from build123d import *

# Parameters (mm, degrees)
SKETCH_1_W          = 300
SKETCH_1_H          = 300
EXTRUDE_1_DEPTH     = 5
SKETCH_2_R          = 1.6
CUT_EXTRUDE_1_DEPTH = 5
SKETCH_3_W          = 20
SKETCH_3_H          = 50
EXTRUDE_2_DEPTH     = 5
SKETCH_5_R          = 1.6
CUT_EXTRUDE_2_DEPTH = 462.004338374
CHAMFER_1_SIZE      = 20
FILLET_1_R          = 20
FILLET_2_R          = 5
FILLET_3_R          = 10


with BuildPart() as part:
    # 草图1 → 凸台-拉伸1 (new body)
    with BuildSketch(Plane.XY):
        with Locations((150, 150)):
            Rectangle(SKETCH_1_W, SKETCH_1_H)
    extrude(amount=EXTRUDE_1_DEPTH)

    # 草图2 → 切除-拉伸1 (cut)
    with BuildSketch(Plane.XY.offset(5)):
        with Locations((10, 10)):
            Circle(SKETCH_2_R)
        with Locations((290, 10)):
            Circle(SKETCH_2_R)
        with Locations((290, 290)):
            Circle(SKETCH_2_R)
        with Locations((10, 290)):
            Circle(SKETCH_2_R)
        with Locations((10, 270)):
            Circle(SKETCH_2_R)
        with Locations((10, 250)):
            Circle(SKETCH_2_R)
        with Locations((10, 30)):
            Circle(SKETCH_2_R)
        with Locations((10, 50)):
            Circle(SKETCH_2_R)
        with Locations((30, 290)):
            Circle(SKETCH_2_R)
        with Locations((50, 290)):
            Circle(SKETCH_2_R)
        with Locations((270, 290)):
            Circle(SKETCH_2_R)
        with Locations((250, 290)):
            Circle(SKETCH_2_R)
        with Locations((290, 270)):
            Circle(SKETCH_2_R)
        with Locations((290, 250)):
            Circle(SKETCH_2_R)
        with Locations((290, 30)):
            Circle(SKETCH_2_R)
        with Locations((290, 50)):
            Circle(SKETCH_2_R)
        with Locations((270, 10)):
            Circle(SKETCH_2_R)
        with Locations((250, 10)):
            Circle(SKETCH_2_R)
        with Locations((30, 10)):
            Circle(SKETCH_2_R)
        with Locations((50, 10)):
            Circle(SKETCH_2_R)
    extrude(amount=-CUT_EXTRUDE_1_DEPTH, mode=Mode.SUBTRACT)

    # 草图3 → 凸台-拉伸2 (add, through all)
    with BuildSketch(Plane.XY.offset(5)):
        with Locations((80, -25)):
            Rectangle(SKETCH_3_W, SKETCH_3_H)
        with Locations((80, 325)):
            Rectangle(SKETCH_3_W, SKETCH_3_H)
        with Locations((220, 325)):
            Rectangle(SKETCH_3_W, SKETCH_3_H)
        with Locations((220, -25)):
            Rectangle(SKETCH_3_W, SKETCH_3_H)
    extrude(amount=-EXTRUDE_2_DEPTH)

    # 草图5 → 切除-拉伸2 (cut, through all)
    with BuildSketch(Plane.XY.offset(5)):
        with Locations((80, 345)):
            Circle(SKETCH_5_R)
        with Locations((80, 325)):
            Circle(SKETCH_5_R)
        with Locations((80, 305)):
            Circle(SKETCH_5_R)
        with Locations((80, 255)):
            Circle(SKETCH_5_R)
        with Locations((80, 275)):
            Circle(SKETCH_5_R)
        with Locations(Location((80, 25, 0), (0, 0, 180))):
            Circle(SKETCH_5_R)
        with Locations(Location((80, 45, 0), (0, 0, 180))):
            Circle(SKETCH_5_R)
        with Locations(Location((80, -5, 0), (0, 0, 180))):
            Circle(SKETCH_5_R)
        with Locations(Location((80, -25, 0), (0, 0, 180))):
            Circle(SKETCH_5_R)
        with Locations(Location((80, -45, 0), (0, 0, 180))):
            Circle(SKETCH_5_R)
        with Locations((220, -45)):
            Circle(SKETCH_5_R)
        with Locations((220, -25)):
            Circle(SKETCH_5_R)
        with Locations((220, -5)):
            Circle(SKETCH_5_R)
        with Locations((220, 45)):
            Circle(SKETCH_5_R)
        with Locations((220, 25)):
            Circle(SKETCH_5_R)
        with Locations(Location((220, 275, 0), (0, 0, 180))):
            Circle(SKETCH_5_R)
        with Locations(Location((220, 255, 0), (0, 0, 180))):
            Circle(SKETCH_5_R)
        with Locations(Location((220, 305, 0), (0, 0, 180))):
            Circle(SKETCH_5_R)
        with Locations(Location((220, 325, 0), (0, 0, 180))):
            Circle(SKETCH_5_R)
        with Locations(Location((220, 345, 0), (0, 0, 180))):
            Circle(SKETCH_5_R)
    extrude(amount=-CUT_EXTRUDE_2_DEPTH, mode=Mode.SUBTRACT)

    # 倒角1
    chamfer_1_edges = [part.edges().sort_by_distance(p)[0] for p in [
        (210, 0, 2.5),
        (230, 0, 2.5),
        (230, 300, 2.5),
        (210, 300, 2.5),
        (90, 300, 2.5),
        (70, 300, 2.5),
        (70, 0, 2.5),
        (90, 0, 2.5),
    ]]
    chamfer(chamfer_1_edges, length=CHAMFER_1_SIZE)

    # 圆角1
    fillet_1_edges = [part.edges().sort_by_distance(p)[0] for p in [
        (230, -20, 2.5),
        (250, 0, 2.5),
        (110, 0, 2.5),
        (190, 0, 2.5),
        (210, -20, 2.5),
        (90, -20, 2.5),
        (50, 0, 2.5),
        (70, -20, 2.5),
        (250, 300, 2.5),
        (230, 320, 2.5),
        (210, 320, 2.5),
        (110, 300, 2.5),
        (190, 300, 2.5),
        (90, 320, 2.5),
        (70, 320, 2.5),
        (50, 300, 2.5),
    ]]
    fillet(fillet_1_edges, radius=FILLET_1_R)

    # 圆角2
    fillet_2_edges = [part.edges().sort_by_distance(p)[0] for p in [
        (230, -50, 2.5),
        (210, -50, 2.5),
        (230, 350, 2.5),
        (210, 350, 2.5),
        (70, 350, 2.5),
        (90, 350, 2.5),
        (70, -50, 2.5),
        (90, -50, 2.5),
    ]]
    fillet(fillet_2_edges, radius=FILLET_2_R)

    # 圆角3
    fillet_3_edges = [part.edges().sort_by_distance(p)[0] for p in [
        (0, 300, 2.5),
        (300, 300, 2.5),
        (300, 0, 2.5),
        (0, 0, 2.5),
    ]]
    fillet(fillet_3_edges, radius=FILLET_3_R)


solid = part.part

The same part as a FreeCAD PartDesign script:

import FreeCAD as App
import Part
import Sketcher
from FreeCAD import Vector


def edges_at(feature, points):
    """Names of the edges that pass closest to the given points."""
    edges = feature.Shape.Edges
    near = lambda p: min(range(len(edges)), key=lambda i: edges[i].distToShape(Part.Vertex(*p))[0])
    return sorted({f"Edge{near(p) + 1}" for p in points})


def add_polygon(sketch, points):
    """Adds a closed chain of lines whose ends are joined by coincident constraints."""
    first, n = sketch.GeometryCount, len(points)
    for a, b in zip(points, points[1:] + points[:1]):
        sketch.addGeometry(Part.LineSegment(App.Vector(*a, 0), App.Vector(*b, 0)), False)
    for i in range(n):
        sketch.addConstraint(Sketcher.Constraint("Coincident", first + i, 2, first + (i + 1) % n, 1))

doc = App.newDocument("Part")
body = doc.addObject("PartDesign::Body", "Body")

# Sketch on XY plane
sketch1 = body.newObject("Sketcher::SketchObject", "Sketch")
sketch1.AttachmentSupport = (doc.getObject("XY_Plane"), [""])
sketch1.MapMode = "FlatFace"
add_polygon(sketch1, [(0, 300), (0, 0), (300, 0), (300, 300)])  # lines 0-3
sketch1.addConstraint([
    Sketcher.Constraint("Vertical", 0),
    Sketcher.Constraint("Horizontal", 1),
    Sketcher.Constraint("Vertical", 2),
    Sketcher.Constraint("Horizontal", 3),
    Sketcher.Constraint("Coincident", 0, 2, -1, 1),
    Sketcher.Constraint("Equal", 3, 0),
    Sketcher.Constraint("DistanceX", 1, 1, 1, 2, 300.0),
])
pad1 = body.newObject("PartDesign::Pad", "Pad")
pad1.Profile = sketch1
pad1.Length = 5

# Sketch on XY plane
sketch2 = body.newObject("Sketcher::SketchObject", "Sketch001")
sketch2.AttachmentSupport = (doc.getObject("XY_Plane"), [""])
sketch2.MapMode = "FlatFace"
sketch2.AttachmentOffset = App.Placement(Vector(0, 0, 5), App.Rotation())
sketch2.addGeometry([
    Part.Circle(Vector(10, 10, 0), Vector(0, 0, 1), 1.6),  # 0
    Part.Circle(Vector(290, 10, 0), Vector(0, 0, 1), 1.6),  # 1
    Part.Circle(Vector(290, 290, 0), Vector(0, 0, 1), 1.6),  # 2
    Part.Circle(Vector(10, 290, 0), Vector(0, 0, 1), 1.6),  # 3
    Part.Circle(Vector(10, 270, 0), Vector(0, 0, 1), 1.6),  # 4
    Part.Circle(Vector(10, 250, 0), Vector(0, 0, 1), 1.6),  # 5
    Part.Circle(Vector(10, 30, 0), Vector(0, 0, 1), 1.6),  # 6
    Part.Circle(Vector(10, 50, 0), Vector(0, 0, 1), 1.6),  # 7
    Part.Circle(Vector(30, 290, 0), Vector(0, 0, 1), 1.6),  # 8
    Part.Circle(Vector(50, 290, 0), Vector(0, 0, 1), 1.6),  # 9
    Part.Circle(Vector(270, 290, 0), Vector(0, 0, 1), 1.6),  # 10
    Part.Circle(Vector(250, 290, 0), Vector(0, 0, 1), 1.6),  # 11
    Part.Circle(Vector(290, 270, 0), Vector(0, 0, 1), 1.6),  # 12
    Part.Circle(Vector(290, 250, 0), Vector(0, 0, 1), 1.6),  # 13
    Part.Circle(Vector(290, 30, 0), Vector(0, 0, 1), 1.6),  # 14
    Part.Circle(Vector(290, 50, 0), Vector(0, 0, 1), 1.6),  # 15
    Part.Circle(Vector(270, 10, 0), Vector(0, 0, 1), 1.6),  # 16
    Part.Circle(Vector(250, 10, 0), Vector(0, 0, 1), 1.6),  # 17
    Part.Circle(Vector(30, 10, 0), Vector(0, 0, 1), 1.6),  # 18
    Part.Circle(Vector(50, 10, 0), Vector(0, 0, 1), 1.6),  # 19
], False)
sketch2.addConstraint([
    Sketcher.Constraint("Equal", 0, 1),
    Sketcher.Constraint("Equal", 1, 2),
    Sketcher.Constraint("Equal", 2, 3),
    Sketcher.Constraint("Equal", 3, 4),
    Sketcher.Constraint("Equal", 4, 5),
    Sketcher.Constraint("Equal", 5, 6),
    Sketcher.Constraint("Equal", 6, 7),
    Sketcher.Constraint("Equal", 7, 8),
    Sketcher.Constraint("Equal", 8, 9),
    Sketcher.Constraint("Equal", 9, 10),
    Sketcher.Constraint("Equal", 10, 11),
    Sketcher.Constraint("Equal", 11, 12),
    Sketcher.Constraint("Equal", 12, 13),
    Sketcher.Constraint("Equal", 13, 14),
    Sketcher.Constraint("Equal", 14, 15),
    Sketcher.Constraint("Equal", 15, 16),
    Sketcher.Constraint("Equal", 16, 17),
    Sketcher.Constraint("Equal", 17, 18),
    Sketcher.Constraint("Equal", 18, 19),
    Sketcher.Constraint("Horizontal", 0, 3, 1, 3),
    Sketcher.Constraint("Horizontal", 2, 3, 3, 3),
    Sketcher.Constraint("Horizontal", 3, 3, 8, 3),
    Sketcher.Constraint("Horizontal", 8, 3, 9, 3),
    Sketcher.Constraint("Horizontal", 9, 3, 10, 3),
    Sketcher.Constraint("Horizontal", 10, 3, 11, 3),
    Sketcher.Constraint("Horizontal", 4, 3, 12, 3),
    Sketcher.Constraint("Horizontal", 5, 3, 13, 3),
    Sketcher.Constraint("Horizontal", 6, 3, 14, 3),
    Sketcher.Constraint("Horizontal", 7, 3, 15, 3),
    Sketcher.Constraint("Horizontal", 1, 3, 16, 3),
    Sketcher.Constraint("Horizontal", 16, 3, 17, 3),
    Sketcher.Constraint("Horizontal", 17, 3, 18, 3),
    Sketcher.Constraint("Horizontal", 18, 3, 19, 3),
    Sketcher.Constraint("Vertical", 1, 3, 2, 3),
    Sketcher.Constraint("Vertical", 0, 3, 3, 3),
    Sketcher.Constraint("Vertical", 3, 3, 4, 3),
    Sketcher.Constraint("Vertical", 4, 3, 5, 3),
    Sketcher.Constraint("Vertical", 5, 3, 6, 3),
    Sketcher.Constraint("Vertical", 6, 3, 7, 3),
    Sketcher.Constraint("Vertical", 2, 3, 12, 3),
    Sketcher.Constraint("Vertical", 12, 3, 13, 3),
    Sketcher.Constraint("Vertical", 13, 3, 14, 3),
    Sketcher.Constraint("Vertical", 14, 3, 15, 3),
    Sketcher.Constraint("Vertical", 10, 3, 16, 3),
    Sketcher.Constraint("Vertical", 11, 3, 17, 3),
    Sketcher.Constraint("Vertical", 8, 3, 18, 3),
    Sketcher.Constraint("Vertical", 9, 3, 19, 3),
    Sketcher.Constraint("Diameter", 0, 3.2),
    Sketcher.Constraint("DistanceX", -1, 1, 0, 3, 10.0),
    Sketcher.Constraint("DistanceY", -1, 1, 0, 3, 10.0),
    Sketcher.Constraint("DistanceX", -1, 1, 1, 3, 290.0),
    Sketcher.Constraint("DistanceY", -1, 1, 2, 3, 290.0),
    Sketcher.Constraint("DistanceY", -1, 1, 4, 3, 270.0),
    Sketcher.Constraint("DistanceY", -1, 1, 5, 3, 250.0),
    Sketcher.Constraint("DistanceY", -1, 1, 6, 3, 30.0),
    Sketcher.Constraint("DistanceY", -1, 1, 7, 3, 50.0),
    Sketcher.Constraint("DistanceX", -1, 1, 8, 3, 30.0),
    Sketcher.Constraint("DistanceX", -1, 1, 9, 3, 50.0),
    Sketcher.Constraint("DistanceX", -1, 1, 10, 3, 270.0),
    Sketcher.Constraint("DistanceX", -1, 1, 11, 3, 250.0),
])
pocket1 = body.newObject("PartDesign::Pocket", "Pocket")
pocket1.Profile = sketch2
pocket1.Length = 5

# Sketch on XY plane
sketch3 = body.newObject("Sketcher::SketchObject", "Sketch002")
sketch3.AttachmentSupport = (doc.getObject("XY_Plane"), [""])
sketch3.MapMode = "FlatFace"
sketch3.AttachmentOffset = App.Placement(Vector(0, 0, 5), App.Rotation())
add_polygon(sketch3, [(70, 0), (70, -50), (90, -50), (90, 0)])  # lines 0-3
add_polygon(sketch3, [(70, 350), (70, 300), (90, 300), (90, 350)])  # lines 4-7
add_polygon(sketch3, [(210, 350), (210, 300), (230, 300), (230, 350)])  # lines 8-11
add_polygon(sketch3, [(210, 0), (210, -50), (230, -50), (230, 0)])  # lines 12-15
sketch3.addConstraint([
    Sketcher.Constraint("Vertical", 0),
    Sketcher.Constraint("Horizontal", 1),
    Sketcher.Constraint("Vertical", 2),
    Sketcher.Constraint("Horizontal", 3),
    Sketcher.Constraint("Vertical", 4),
    Sketcher.Constraint("Horizontal", 5),
    Sketcher.Constraint("Vertical", 6),
    Sketcher.Constraint("Horizontal", 7),
    Sketcher.Constraint("Vertical", 8),
    Sketcher.Constraint("Horizontal", 9),
    Sketcher.Constraint("Vertical", 10),
    Sketcher.Constraint("Horizontal", 11),
    Sketcher.Constraint("Vertical", 12),
    Sketcher.Constraint("Horizontal", 13),
    Sketcher.Constraint("Vertical", 14),
    Sketcher.Constraint("Horizontal", 15),
    Sketcher.Constraint("PointOnObject", 2, 2, -1),
    Sketcher.Constraint("PointOnObject", 14, 2, -1),
    Sketcher.Constraint("Horizontal", 5, 2, 8, 2),
    Sketcher.Constraint("Horizontal", 7, 2, 10, 2),
    Sketcher.Constraint("Horizontal", 1, 2, 12, 2),
    Sketcher.Constraint("Vertical", 3, 2, 4, 2),
    Sketcher.Constraint("Vertical", 2, 2, 5, 2),
    Sketcher.Constraint("Vertical", 11, 2, 12, 2),
    Sketcher.Constraint("Vertical", 10, 2, 13, 2),
    Sketcher.Constraint("Equal", 7, 9),
    Sketcher.Constraint("Equal", 2, 4),
    Sketcher.Constraint("DistanceX", 1, 1, 1, 2, 20.0),
    Sketcher.Constraint("DistanceY", 0, 2, 0, 1, 50.0),
    Sketcher.Constraint("DistanceX", -1, 1, 0, 2, 70.0),
    Sketcher.Constraint("DistanceY", -1, 1, 4, 2, 300.0),
    Sketcher.Constraint("DistanceX", -1, 1, 8, 2, 210.0),
])
pad2 = body.newObject("PartDesign::Pad", "Pad001")
pad2.Profile = sketch3
pad2.Type = "UpToLast"
pad2.Reversed = True

# Sketch on XY plane
sketch4 = body.newObject("Sketcher::SketchObject", "Sketch003")
sketch4.AttachmentSupport = (doc.getObject("XY_Plane"), [""])
sketch4.MapMode = "FlatFace"
sketch4.AttachmentOffset = App.Placement(Vector(0, 0, 5), App.Rotation())
sketch4.addGeometry([
    Part.Circle(Vector(80, 345, 0), Vector(0, 0, 1), 1.6),  # 0
    Part.Circle(Vector(80, 325, 0), Vector(0, 0, 1), 1.6),  # 1
    Part.Circle(Vector(80, 305, 0), Vector(0, 0, 1), 1.6),  # 2
    Part.Circle(Vector(80, 255, 0), Vector(0, 0, 1), 1.6),  # 3
    Part.Circle(Vector(80, 275, 0), Vector(0, 0, 1), 1.6),  # 4
    Part.Circle(Vector(80, 25, 0), Vector(0, 0, 1), 1.6),  # 5
    Part.Circle(Vector(80, 45, 0), Vector(0, 0, 1), 1.6),  # 6
    Part.Circle(Vector(80, -5, 0), Vector(0, 0, 1), 1.6),  # 7
    Part.Circle(Vector(80, -25, 0), Vector(0, 0, 1), 1.6),  # 8
    Part.Circle(Vector(80, -45, 0), Vector(0, 0, 1), 1.6),  # 9
    Part.Circle(Vector(220, -45, 0), Vector(0, 0, 1), 1.6),  # 10
    Part.Circle(Vector(220, -25, 0), Vector(0, 0, 1), 1.6),  # 11
    Part.Circle(Vector(220, -5, 0), Vector(0, 0, 1), 1.6),  # 12
    Part.Circle(Vector(220, 45, 0), Vector(0, 0, 1), 1.6),  # 13
    Part.Circle(Vector(220, 25, 0), Vector(0, 0, 1), 1.6),  # 14
    Part.Circle(Vector(220, 275, 0), Vector(0, 0, 1), 1.6),  # 15
    Part.Circle(Vector(220, 255, 0), Vector(0, 0, 1), 1.6),  # 16
    Part.Circle(Vector(220, 305, 0), Vector(0, 0, 1), 1.6),  # 17
    Part.Circle(Vector(220, 325, 0), Vector(0, 0, 1), 1.6),  # 18
    Part.Circle(Vector(220, 345, 0), Vector(0, 0, 1), 1.6),  # 19
], False)
sketch4.addConstraint([
    Sketcher.Constraint("Equal", 0, 1),
    Sketcher.Constraint("Equal", 1, 2),
    Sketcher.Constraint("Equal", 2, 3),
    Sketcher.Constraint("Equal", 3, 4),
    Sketcher.Constraint("Equal", 4, 5),
    Sketcher.Constraint("Equal", 5, 6),
    Sketcher.Constraint("Equal", 6, 7),
    Sketcher.Constraint("Equal", 7, 8),
    Sketcher.Constraint("Equal", 8, 9),
    Sketcher.Constraint("Equal", 9, 10),
    Sketcher.Constraint("Equal", 10, 11),
    Sketcher.Constraint("Equal", 11, 12),
    Sketcher.Constraint("Equal", 12, 13),
    Sketcher.Constraint("Equal", 13, 14),
    Sketcher.Constraint("Equal", 14, 15),
    Sketcher.Constraint("Equal", 15, 16),
    Sketcher.Constraint("Equal", 16, 17),
    Sketcher.Constraint("Equal", 17, 18),
    Sketcher.Constraint("Equal", 18, 19),
    Sketcher.Constraint("Symmetric", 5, 3, 8, 3, -1),
    Sketcher.Constraint("Symmetric", 6, 3, 9, 3, -1),
    Sketcher.Constraint("Symmetric", 10, 3, 13, 3, -1),
    Sketcher.Constraint("Symmetric", 11, 3, 14, 3, -1),
    Sketcher.Constraint("Horizontal", 9, 3, 10, 3),
    Sketcher.Constraint("Horizontal", 8, 3, 11, 3),
    Sketcher.Constraint("Horizontal", 7, 3, 12, 3),
    Sketcher.Constraint("Horizontal", 4, 3, 15, 3),
    Sketcher.Constraint("Horizontal", 3, 3, 16, 3),
    Sketcher.Constraint("Horizontal", 2, 3, 17, 3),
    Sketcher.Constraint("Horizontal", 1, 3, 18, 3),
    Sketcher.Constraint("Horizontal", 0, 3, 19, 3),
    Sketcher.Constraint("Vertical", 0, 3, 1, 3),
    Sketcher.Constraint("Vertical", 1, 3, 2, 3),
    Sketcher.Constraint("Vertical", 2, 3, 3, 3),
    Sketcher.Constraint("Vertical", 3, 3, 4, 3),
    Sketcher.Constraint("Vertical", 4, 3, 5, 3),
    Sketcher.Constraint("Vertical", 5, 3, 6, 3),
    Sketcher.Constraint("Vertical", 6, 3, 7, 3),
    Sketcher.Constraint("Vertical", 10, 3, 11, 3),
    Sketcher.Constraint("Vertical", 11, 3, 12, 3),
    Sketcher.Constraint("Vertical", 14, 3, 15, 3),
    Sketcher.Constraint("Vertical", 15, 3, 16, 3),
    Sketcher.Constraint("Vertical", 16, 3, 17, 3),
    Sketcher.Constraint("Vertical", 17, 3, 18, 3),
    Sketcher.Constraint("Vertical", 18, 3, 19, 3),
    Sketcher.Constraint("Diameter", 0, 3.2),
    Sketcher.Constraint("DistanceX", -1, 1, 0, 3, 80.0),
    Sketcher.Constraint("DistanceY", -1, 1, 0, 3, 345.0),
    Sketcher.Constraint("DistanceY", -1, 1, 1, 3, 325.0),
    Sketcher.Constraint("DistanceY", -1, 1, 2, 3, 305.0),
    Sketcher.Constraint("DistanceY", -1, 1, 3, 3, 255.0),
    Sketcher.Constraint("DistanceY", -1, 1, 4, 3, 275.0),
    Sketcher.Constraint("DistanceY", -1, 1, 5, 3, 25.0),
    Sketcher.Constraint("DistanceY", -1, 1, 6, 3, 45.0),
    Sketcher.Constraint("DistanceY", 7, 3, -1, 1, 5.0),
    Sketcher.Constraint("DistanceX", -1, 1, 10, 3, 220.0),
])
pocket2 = body.newObject("PartDesign::Pocket", "Pocket001")
pocket2.Profile = sketch4
pocket2.Type = "ThroughAll"
doc.recompute()

chamfer = body.newObject("PartDesign::Chamfer", "Chamfer")
chamfer.Base = (pocket2, edges_at(pocket2, [
    (210, 0, 2.5),
    (230, 0, 2.5),
    (230, 300, 2.5),
    (210, 300, 2.5),
    (90, 300, 2.5),
    (70, 300, 2.5),
    (70, 0, 2.5),
    (90, 0, 2.5),
]))
chamfer.Size = 20
doc.recompute()

fillet = body.newObject("PartDesign::Fillet", "Fillet")
fillet.Base = (chamfer, edges_at(chamfer, [
    (230, -20, 2.5),
    (250, 0, 2.5),
    (110, 0, 2.5),
    (190, 0, 2.5),
    (210, -20, 2.5),
    (90, -20, 2.5),
    (50, 0, 2.5),
    (70, -20, 2.5),
    (250, 300, 2.5),
    (230, 320, 2.5),
    (210, 320, 2.5),
    (110, 300, 2.5),
    (190, 300, 2.5),
    (90, 320, 2.5),
    (70, 320, 2.5),
    (50, 300, 2.5),
]))
fillet.Radius = 20
doc.recompute()

fillet2 = body.newObject("PartDesign::Fillet", "Fillet001")
fillet2.Base = (fillet, edges_at(fillet, [
    (230, -50, 2.5),
    (210, -50, 2.5),
    (230, 350, 2.5),
    (210, 350, 2.5),
    (70, 350, 2.5),
    (90, 350, 2.5),
    (70, -50, 2.5),
    (90, -50, 2.5),
]))
fillet2.Radius = 5
doc.recompute()

fillet3 = body.newObject("PartDesign::Fillet", "Fillet002")
fillet3.Base = (fillet2, edges_at(fillet2, [
    (0, 300, 2.5),
    (300, 300, 2.5),
    (300, 0, 2.5),
    (0, 0, 2.5),
]))
fillet3.Radius = 10

doc.recompute()
